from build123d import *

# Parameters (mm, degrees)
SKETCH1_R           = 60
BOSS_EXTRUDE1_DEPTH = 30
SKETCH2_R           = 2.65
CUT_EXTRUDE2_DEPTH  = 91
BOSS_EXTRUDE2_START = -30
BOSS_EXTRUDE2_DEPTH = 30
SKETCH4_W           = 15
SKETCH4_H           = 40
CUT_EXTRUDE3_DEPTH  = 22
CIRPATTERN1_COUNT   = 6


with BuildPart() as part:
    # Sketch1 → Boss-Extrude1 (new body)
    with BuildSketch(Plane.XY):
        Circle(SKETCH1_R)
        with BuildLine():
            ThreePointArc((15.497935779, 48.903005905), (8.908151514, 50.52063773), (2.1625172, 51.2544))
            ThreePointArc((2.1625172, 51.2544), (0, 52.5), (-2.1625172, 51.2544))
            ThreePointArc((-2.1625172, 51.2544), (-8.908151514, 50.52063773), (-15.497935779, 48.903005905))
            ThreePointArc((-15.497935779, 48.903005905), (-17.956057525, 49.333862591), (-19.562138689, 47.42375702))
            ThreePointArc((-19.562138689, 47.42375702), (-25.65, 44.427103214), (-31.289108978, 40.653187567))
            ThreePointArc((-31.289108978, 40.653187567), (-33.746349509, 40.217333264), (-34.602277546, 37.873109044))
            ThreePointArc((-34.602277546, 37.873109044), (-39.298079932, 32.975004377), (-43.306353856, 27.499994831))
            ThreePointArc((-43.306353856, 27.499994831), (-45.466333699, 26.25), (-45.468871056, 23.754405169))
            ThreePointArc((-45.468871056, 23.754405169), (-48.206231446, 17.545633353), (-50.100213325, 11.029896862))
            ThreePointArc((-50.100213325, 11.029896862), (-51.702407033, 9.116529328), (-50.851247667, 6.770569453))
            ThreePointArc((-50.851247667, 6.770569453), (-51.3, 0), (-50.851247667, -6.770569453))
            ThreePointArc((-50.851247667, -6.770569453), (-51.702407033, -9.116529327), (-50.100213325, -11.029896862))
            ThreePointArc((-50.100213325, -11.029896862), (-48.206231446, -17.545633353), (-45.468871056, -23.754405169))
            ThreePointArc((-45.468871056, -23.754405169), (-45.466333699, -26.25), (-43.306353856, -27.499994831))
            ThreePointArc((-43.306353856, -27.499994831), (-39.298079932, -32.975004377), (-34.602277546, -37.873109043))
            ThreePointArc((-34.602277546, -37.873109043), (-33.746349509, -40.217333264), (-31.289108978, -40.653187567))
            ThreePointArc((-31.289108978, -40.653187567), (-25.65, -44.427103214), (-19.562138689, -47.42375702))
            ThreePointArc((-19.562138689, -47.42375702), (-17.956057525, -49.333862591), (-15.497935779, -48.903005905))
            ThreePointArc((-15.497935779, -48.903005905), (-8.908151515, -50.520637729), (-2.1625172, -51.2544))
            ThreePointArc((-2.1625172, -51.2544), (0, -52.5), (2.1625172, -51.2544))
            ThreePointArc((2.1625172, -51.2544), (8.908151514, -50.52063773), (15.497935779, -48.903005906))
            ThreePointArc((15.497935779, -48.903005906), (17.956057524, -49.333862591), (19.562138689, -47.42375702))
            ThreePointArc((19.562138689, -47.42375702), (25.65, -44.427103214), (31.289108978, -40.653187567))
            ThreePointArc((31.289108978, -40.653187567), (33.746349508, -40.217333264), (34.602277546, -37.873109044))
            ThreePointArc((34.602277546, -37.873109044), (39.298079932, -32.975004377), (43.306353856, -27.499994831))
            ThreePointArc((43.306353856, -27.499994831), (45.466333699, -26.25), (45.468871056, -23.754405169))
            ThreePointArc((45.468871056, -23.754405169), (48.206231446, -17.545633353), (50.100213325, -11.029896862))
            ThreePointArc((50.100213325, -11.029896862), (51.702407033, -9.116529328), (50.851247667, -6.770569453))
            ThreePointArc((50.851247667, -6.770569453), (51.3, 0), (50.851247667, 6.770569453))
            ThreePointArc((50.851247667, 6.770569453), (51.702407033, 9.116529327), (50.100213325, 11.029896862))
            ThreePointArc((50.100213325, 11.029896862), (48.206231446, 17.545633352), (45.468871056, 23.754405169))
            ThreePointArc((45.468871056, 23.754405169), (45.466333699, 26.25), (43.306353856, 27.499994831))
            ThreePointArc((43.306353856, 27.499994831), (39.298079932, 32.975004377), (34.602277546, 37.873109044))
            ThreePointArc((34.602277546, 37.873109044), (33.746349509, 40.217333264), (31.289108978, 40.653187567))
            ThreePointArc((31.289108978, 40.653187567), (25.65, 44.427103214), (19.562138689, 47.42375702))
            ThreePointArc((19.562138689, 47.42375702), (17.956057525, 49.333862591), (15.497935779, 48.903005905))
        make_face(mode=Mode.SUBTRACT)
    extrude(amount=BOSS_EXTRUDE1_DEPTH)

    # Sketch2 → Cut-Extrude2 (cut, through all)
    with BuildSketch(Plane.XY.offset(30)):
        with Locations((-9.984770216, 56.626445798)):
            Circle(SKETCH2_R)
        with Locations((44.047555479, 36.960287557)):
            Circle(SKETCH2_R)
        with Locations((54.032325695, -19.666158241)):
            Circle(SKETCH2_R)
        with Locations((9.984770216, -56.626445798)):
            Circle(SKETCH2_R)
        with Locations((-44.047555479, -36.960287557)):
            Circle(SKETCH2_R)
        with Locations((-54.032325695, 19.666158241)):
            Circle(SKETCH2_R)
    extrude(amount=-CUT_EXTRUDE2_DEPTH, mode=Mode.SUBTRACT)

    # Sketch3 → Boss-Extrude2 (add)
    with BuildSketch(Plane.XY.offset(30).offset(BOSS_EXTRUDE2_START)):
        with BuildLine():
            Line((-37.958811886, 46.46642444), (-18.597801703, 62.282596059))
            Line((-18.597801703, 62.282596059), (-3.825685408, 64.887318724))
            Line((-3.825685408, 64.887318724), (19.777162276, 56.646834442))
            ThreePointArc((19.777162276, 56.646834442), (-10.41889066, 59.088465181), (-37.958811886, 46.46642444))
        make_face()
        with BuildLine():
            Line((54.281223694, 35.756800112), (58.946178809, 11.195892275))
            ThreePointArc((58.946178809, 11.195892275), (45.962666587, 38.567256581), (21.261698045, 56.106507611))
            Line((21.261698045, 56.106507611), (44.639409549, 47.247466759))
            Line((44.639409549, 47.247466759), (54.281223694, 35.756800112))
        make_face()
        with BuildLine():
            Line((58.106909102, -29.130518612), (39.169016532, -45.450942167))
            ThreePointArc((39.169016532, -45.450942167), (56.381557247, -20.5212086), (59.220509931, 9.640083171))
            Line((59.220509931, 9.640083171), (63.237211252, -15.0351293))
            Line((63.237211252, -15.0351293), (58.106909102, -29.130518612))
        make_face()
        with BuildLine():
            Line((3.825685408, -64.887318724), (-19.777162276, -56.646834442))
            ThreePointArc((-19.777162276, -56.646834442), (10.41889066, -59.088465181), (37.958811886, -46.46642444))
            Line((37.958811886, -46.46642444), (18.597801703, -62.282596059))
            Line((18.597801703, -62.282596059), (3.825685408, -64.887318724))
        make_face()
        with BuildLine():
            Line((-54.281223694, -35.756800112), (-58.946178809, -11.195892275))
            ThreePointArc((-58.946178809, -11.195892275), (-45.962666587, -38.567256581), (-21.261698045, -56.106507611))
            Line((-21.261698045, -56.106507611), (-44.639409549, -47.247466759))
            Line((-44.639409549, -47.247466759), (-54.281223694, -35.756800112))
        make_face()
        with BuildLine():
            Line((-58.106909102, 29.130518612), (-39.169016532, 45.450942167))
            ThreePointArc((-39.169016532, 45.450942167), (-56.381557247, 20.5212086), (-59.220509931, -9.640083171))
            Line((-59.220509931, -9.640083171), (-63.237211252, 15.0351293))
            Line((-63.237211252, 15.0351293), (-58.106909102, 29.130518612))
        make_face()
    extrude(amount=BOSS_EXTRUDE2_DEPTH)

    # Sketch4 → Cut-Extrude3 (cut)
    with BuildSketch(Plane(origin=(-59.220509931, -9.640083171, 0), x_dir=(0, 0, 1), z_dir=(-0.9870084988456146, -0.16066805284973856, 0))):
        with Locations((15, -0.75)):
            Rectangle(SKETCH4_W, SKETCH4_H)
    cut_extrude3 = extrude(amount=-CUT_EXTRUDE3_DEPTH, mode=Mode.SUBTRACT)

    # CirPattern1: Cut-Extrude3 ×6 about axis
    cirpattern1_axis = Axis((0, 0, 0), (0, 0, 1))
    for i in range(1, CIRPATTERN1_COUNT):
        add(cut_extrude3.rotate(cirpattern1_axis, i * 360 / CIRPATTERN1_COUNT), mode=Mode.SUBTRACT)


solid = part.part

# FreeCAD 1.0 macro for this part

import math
import FreeCAD as App
import Part
import Sketcher
from FreeCAD import Vector
Q = App.Units.Quantity


def add_polygon(sketch, points):
    """Adds a closed chain of lines whose ends are joined by coincident constraints."""
    first, n = sketch.GeometryCount, len(points)
    for a, b in zip(points, points[1:] + points[:1]):
        sketch.addGeometry(Part.LineSegment(App.Vector(*a, 0), App.Vector(*b, 0)), False)
    for i in range(n):
        sketch.addConstraint(Sketcher.Constraint("Coincident", first + i, 2, first + (i + 1) % n, 1))

doc = App.newDocument("Part")
body = doc.addObject("PartDesign::Body", "Body")

# Sketch on XY plane
sketch1 = body.newObject("Sketcher::SketchObject", "Sketch")
sketch1.AttachmentSupport = (doc.getObject("XY_Plane"), [""])
sketch1.MapMode = "FlatFace"
sketch1.addGeometry([
    Part.Circle(Vector(0, 0, 0), Vector(0, 0, 1), 60),  # 0
    Part.ArcOfCircle(Part.Circle(Vector(0, 0, 0), Vector(0, 0, 1), 51.3), math.radians(72.42), math.radians(87.58)),  # 1
    Part.ArcOfCircle(Part.Circle(Vector(17.1, 47, 0), Vector(0, 0, 1), 2.5), math.radians(10), math.radians(130)),  # 2
    Part.ArcOfCircle(Part.Circle(Vector(0, 0, 0), Vector(0, 0, 1), 51.3), math.radians(52.42), math.radians(67.58)),  # 3
    Part.ArcOfCircle(Part.Circle(Vector(32.1, 38.3, 0), Vector(0, 0, 1), 2.5), math.radians(-10), math.radians(110)),  # 4
    Part.ArcOfCircle(Part.Circle(Vector(0, 0, 0), Vector(0, 0, 1), 51.3), math.radians(32.42), math.radians(47.58)),  # 5
    Part.ArcOfCircle(Part.Circle(Vector(43.3, 25, 0), Vector(0, 0, 1), 2.5), math.radians(-30), math.radians(90)),  # 6
    Part.ArcOfCircle(Part.Circle(Vector(0, 0, 0), Vector(0, 0, 1), 51.3), math.radians(12.42), math.radians(27.58)),  # 7
    Part.ArcOfCircle(Part.Circle(Vector(49.2, 8.7, 0), Vector(0, 0, 1), 2.5), math.radians(-50), math.radians(70)),  # 8
    Part.ArcOfCircle(Part.Circle(Vector(0, 0, 0), Vector(0, 0, 1), 51.3), math.radians(-7.58), math.radians(7.58)),  # 9
    Part.ArcOfCircle(Part.Circle(Vector(49.2, -8.7, 0), Vector(0, 0, 1), 2.5), math.radians(-70), math.radians(50)),  # 10
    Part.ArcOfCircle(Part.Circle(Vector(0, 0, 0), Vector(0, 0, 1), 51.3), math.radians(-27.58), math.radians(-12.42)),  # 11
    Part.ArcOfCircle(Part.Circle(Vector(43.3, -25, 0), Vector(0, 0, 1), 2.5), math.radians(-90), math.radians(30)),  # 12
    Part.ArcOfCircle(Part.Circle(Vector(0, 0, 0), Vector(0, 0, 1), 51.3), math.radians(-47.58), math.radians(-32.42)),  # 13
    Part.ArcOfCircle(Part.Circle(Vector(32.1, -38.3, 0), Vector(0, 0, 1), 2.5), math.radians(-110), math.radians(10)),  # 14
    Part.ArcOfCircle(Part.Circle(Vector(0, 0, 0), Vector(0, 0, 1), 51.3), math.radians(-67.58), math.radians(-52.42)),  # 15
    Part.ArcOfCircle(Part.Circle(Vector(17.1, -47, 0), Vector(0, 0, 1), 2.5), math.radians(-130), math.radians(-10)),  # 16
    Part.ArcOfCircle(Part.Circle(Vector(0, 0, 0), Vector(0, 0, 1), 51.3), math.radians(-87.58), math.radians(-72.42)),  # 17
    Part.ArcOfCircle(Part.Circle(Vector(0, -50, 0), Vector(0, 0, 1), 2.5), math.radians(-150), math.radians(-30)),  # 18
    Part.ArcOfCircle(Part.Circle(Vector(0, 0, 0), Vector(0, 0, 1), 51.3), math.radians(-107.58), math.radians(-92.42)),  # 19
    Part.ArcOfCircle(Part.Circle(Vector(-17.1, -47, 0), Vector(0, 0, 1), 2.5), math.radians(-170), math.radians(-50)),  # 20
    Part.ArcOfCircle(Part.Circle(Vector(0, 0, 0), Vector(0, 0, 1), 51.3), math.radians(-127.58), math.radians(-112.42)),  # 21
    Part.ArcOfCircle(Part.Circle(Vector(-32.1, -38.3, 0), Vector(0, 0, 1), 2.5), math.radians(170), math.radians(290)),  # 22
    Part.ArcOfCircle(Part.Circle(Vector(0, 0, 0), Vector(0, 0, 1), 51.3), math.radians(-147.58), math.radians(-132.42)),  # 23
    Part.ArcOfCircle(Part.Circle(Vector(-43.3, -25, 0), Vector(0, 0, 1), 2.5), math.radians(150), math.radians(270)),  # 24
    Part.ArcOfCircle(Part.Circle(Vector(0, 0, 0), Vector(0, 0, 1), 51.3), math.radians(-167.58), math.radians(-152.42)),  # 25
    Part.ArcOfCircle(Part.Circle(Vector(-49.2, -8.7, 0), Vector(0, 0, 1), 2.5), math.radians(130), math.radians(250)),  # 26
    Part.ArcOfCircle(Part.Circle(Vector(0, 0, 0), Vector(0, 0, 1), 51.3), math.radians(172.42), math.radians(187.58)),  # 27
    Part.ArcOfCircle(Part.Circle(Vector(-49.2, 8.7, 0), Vector(0, 0, 1), 2.5), math.radians(110), math.radians(230)),  # 28
    Part.ArcOfCircle(Part.Circle(Vector(0, 0, 0), Vector(0, 0, 1), 51.3), math.radians(152.42), math.radians(167.58)),  # 29
    Part.ArcOfCircle(Part.Circle(Vector(-43.3, 25, 0), Vector(0, 0, 1), 2.5), math.radians(90), math.radians(210)),  # 30
    Part.ArcOfCircle(Part.Circle(Vector(0, 0, 0), Vector(0, 0, 1), 51.3), math.radians(132.42), math.radians(147.58)),  # 31
    Part.ArcOfCircle(Part.Circle(Vector(-32.1, 38.3, 0), Vector(0, 0, 1), 2.5), math.radians(70), math.radians(190)),  # 32
    Part.ArcOfCircle(Part.Circle(Vector(0, 0, 0), Vector(0, 0, 1), 51.3), math.radians(112.42), math.radians(127.58)),  # 33
    Part.ArcOfCircle(Part.Circle(Vector(-17.1, 47, 0), Vector(0, 0, 1), 2.5), math.radians(50), math.radians(170)),  # 34
    Part.ArcOfCircle(Part.Circle(Vector(0, 0, 0), Vector(0, 0, 1), 51.3), math.radians(92.42), math.radians(107.58)),  # 35
    Part.ArcOfCircle(Part.Circle(Vector(0, 50, 0), Vector(0, 0, 1), 2.5), math.radians(30), math.radians(150)),  # 36
], False)
sketch1.addConstraint([
    Sketcher.Constraint("Coincident", 1, 1, 2, 2),
    Sketcher.Constraint("Coincident", 2, 1, 3, 2),
    Sketcher.Constraint("Coincident", 3, 1, 4, 2),
    Sketcher.Constraint("Coincident", 4, 1, 5, 2),
    Sketcher.Constraint("Coincident", 5, 1, 6, 2),
    Sketcher.Constraint("Coincident", 6, 1, 7, 2),
    Sketcher.Constraint("Coincident", 7, 1, 8, 2),
    Sketcher.Constraint("Coincident", 8, 1, 9, 2),
    Sketcher.Constraint("Coincident", 9, 1, 10, 2),
    Sketcher.Constraint("Coincident", 10, 1, 11, 2),
    Sketcher.Constraint("Coincident", 11, 1, 12, 2),
    Sketcher.Constraint("Coincident", 12, 1, 13, 2),
    Sketcher.Constraint("Coincident", 13, 1, 14, 2),
    Sketcher.Constraint("Coincident", 14, 1, 15, 2),
    Sketcher.Constraint("Coincident", 15, 1, 16, 2),
    Sketcher.Constraint("Coincident", 16, 1, 17, 2),
    Sketcher.Constraint("Coincident", 17, 1, 18, 2),
    Sketcher.Constraint("Coincident", 18, 1, 19, 2),
    Sketcher.Constraint("Coincident", 19, 1, 20, 2),
    Sketcher.Constraint("Coincident", 20, 1, 21, 2),
    Sketcher.Constraint("Coincident", 21, 1, 22, 2),
    Sketcher.Constraint("Coincident", 22, 1, 23, 2),
    Sketcher.Constraint("Coincident", 23, 1, 24, 2),
    Sketcher.Constraint("Coincident", 24, 1, 25, 2),
    Sketcher.Constraint("Coincident", 25, 1, 26, 2),
    Sketcher.Constraint("Coincident", 26, 1, 27, 2),
    Sketcher.Constraint("Coincident", 27, 1, 28, 2),
    Sketcher.Constraint("Coincident", 28, 1, 29, 2),
    Sketcher.Constraint("Coincident", 29, 1, 30, 2),
    Sketcher.Constraint("Coincident", 30, 1, 31, 2),
    Sketcher.Constraint("Coincident", 31, 1, 32, 2),
    Sketcher.Constraint("Coincident", 32, 1, 33, 2),
    Sketcher.Constraint("Coincident", 33, 1, 34, 2),
    Sketcher.Constraint("Coincident", 34, 1, 35, 2),
    Sketcher.Constraint("Coincident", 35, 1, 36, 2),
    Sketcher.Constraint("Coincident", 36, 1, 1, 2),
    Sketcher.Constraint("Coincident", 0, 3, -1, 1),
    Sketcher.Constraint("Coincident", 1, 3, -1, 1),
    Sketcher.Constraint("Coincident", 3, 3, -1, 1),
    Sketcher.Constraint("Coincident", 5, 3, -1, 1),
    Sketcher.Constraint("Coincident", 7, 3, -1, 1),
    Sketcher.Constraint("Coincident", 9, 3, -1, 1),
    Sketcher.Constraint("Coincident", 11, 3, -1, 1),
    Sketcher.Constraint("Coincident", 13, 3, -1, 1),
    Sketcher.Constraint("Coincident", 15, 3, -1, 1),
    Sketcher.Constraint("Coincident", 17, 3, -1, 1),
    Sketcher.Constraint("Coincident", 19, 3, -1, 1),
    Sketcher.Constraint("Coincident", 21, 3, -1, 1),
    Sketcher.Constraint("Coincident", 23, 3, -1, 1),
    Sketcher.Constraint("Coincident", 25, 3, -1, 1),
    Sketcher.Constraint("Coincident", 27, 3, -1, 1),
    Sketcher.Constraint("Coincident", 29, 3, -1, 1),
    Sketcher.Constraint("Coincident", 31, 3, -1, 1),
    Sketcher.Constraint("Coincident", 33, 3, -1, 1),
    Sketcher.Constraint("Coincident", 35, 3, -1, 1),
    Sketcher.Constraint("Equal", 1, 3),
    Sketcher.Constraint("Equal", 2, 4),
    Sketcher.Constraint("Equal", 3, 5),
    Sketcher.Constraint("Equal", 4, 6),
    Sketcher.Constraint("Equal", 5, 7),
    Sketcher.Constraint("Equal", 6, 8),
    Sketcher.Constraint("Equal", 7, 9),
    Sketcher.Constraint("Equal", 8, 10),
    Sketcher.Constraint("Equal", 9, 11),
    Sketcher.Constraint("Equal", 10, 12),
    Sketcher.Constraint("Equal", 11, 13),
    Sketcher.Constraint("Equal", 12, 14),
    Sketcher.Constraint("Equal", 13, 15),
    Sketcher.Constraint("Equal", 14, 16),
    Sketcher.Constraint("Equal", 15, 17),
    Sketcher.Constraint("Equal", 16, 18),
    Sketcher.Constraint("Equal", 17, 19),
    Sketcher.Constraint("Equal", 18, 20),
    Sketcher.Constraint("Equal", 19, 21),
    Sketcher.Constraint("Equal", 20, 22),
    Sketcher.Constraint("Equal", 21, 23),
    Sketcher.Constraint("Equal", 22, 24),
    Sketcher.Constraint("Equal", 23, 25),
    Sketcher.Constraint("Equal", 24, 26),
    Sketcher.Constraint("Equal", 25, 27),
    Sketcher.Constraint("Equal", 26, 28),
    Sketcher.Constraint("Equal", 27, 29),
    Sketcher.Constraint("Equal", 28, 30),
    Sketcher.Constraint("Equal", 29, 31),
    Sketcher.Constraint("Equal", 30, 32),
    Sketcher.Constraint("Equal", 31, 33),
    Sketcher.Constraint("Equal", 32, 34),
    Sketcher.Constraint("Equal", 33, 35),
    Sketcher.Constraint("Equal", 34, 36),
    Sketcher.Constraint("Symmetric", 2, 3, 20, 3, -1, 1),
    Sketcher.Constraint("Symmetric", 4, 3, 22, 3, -1, 1),
    Sketcher.Constraint("Symmetric", 6, 3, 24, 3, -1, 1),
    Sketcher.Constraint("Symmetric", 8, 3, 26, 3, -1, 1),
    Sketcher.Constraint("Symmetric", 10, 3, 28, 3, -1, 1),
    Sketcher.Constraint("Symmetric", 12, 3, 30, 3, -1, 1),
    Sketcher.Constraint("Symmetric", 14, 3, 32, 3, -1, 1),
    Sketcher.Constraint("Symmetric", 16, 3, 34, 3, -1, 1),
    Sketcher.Constraint("Symmetric", 18, 3, 36, 3, -1, 1),
    Sketcher.Constraint("Symmetric", 16, 3, 20, 3, -2),
    Sketcher.Constraint("Symmetric", 14, 3, 22, 3, -2),
    Sketcher.Constraint("Symmetric", 12, 3, 24, 3, -2),
    Sketcher.Constraint("Symmetric", 10, 3, 26, 3, -2),
    Sketcher.Constraint("PointOnObject", 18, 3, -2),
    Sketcher.Constraint("Diameter", 0, 120.0),
    Sketcher.Constraint("Radius", 1, 51.3),
    Sketcher.Constraint("Radius", 2, 2.5),
    Sketcher.Constraint("DistanceY", -1, 1, 6, 3, 25.0),
    Sketcher.Constraint("DistanceY", 18, 3, -1, 1, 50.0),
    Sketcher.Constraint("DistanceY", -1, 1, 2, 3, 46.984631),
    Sketcher.Constraint("DistanceX", -1, 1, 4, 3, 32.13938),
    Sketcher.Constraint("DistanceX", -1, 1, 6, 3, 43.30127),
    Sketcher.Constraint("DistanceY", -1, 1, 8, 3, 8.682409),
    Sketcher.Constraint("DistanceX", -1, 1, 2, 1, 19.562139),
    Sketcher.Constraint("DistanceX", -1, 1, 3, 1, 31.289109),
    Sketcher.Constraint("DistanceY", -1, 1, 8, 1, 6.770569),
])
pad1 = body.newObject("PartDesign::Pad", "Pad")
pad1.Profile = sketch1
pad1.Length = 30

# Sketch on XY plane
sketch2 = body.newObject("Sketcher::SketchObject", "Sketch001")
sketch2.AttachmentSupport = (doc.getObject("XY_Plane"), [""])
sketch2.MapMode = "FlatFace"
sketch2.AttachmentOffset = App.Placement(Vector(0, 0, 30), App.Rotation())
sketch2.addGeometry([
    Part.Circle(Vector(-10, 56.6, 0), Vector(0, 0, 1), 2.6),  # 0
    Part.Circle(Vector(44, 37, 0), Vector(0, 0, 1), 2.6),  # 1
    Part.Circle(Vector(54, -19.7, 0), Vector(0, 0, 1), 2.6),  # 2
    Part.Circle(Vector(10, -56.6, 0), Vector(0, 0, 1), 2.6),  # 3
    Part.Circle(Vector(-44, -37, 0), Vector(0, 0, 1), 2.6),  # 4
    Part.Circle(Vector(-54, 19.7, 0), Vector(0, 0, 1), 2.6),  # 5
], False)
sketch2.addConstraint([
    Sketcher.Constraint("Equal", 0, 1),
    Sketcher.Constraint("Equal", 1, 2),
    Sketcher.Constraint("Equal", 2, 3),
    Sketcher.Constraint("Equal", 3, 4),
    Sketcher.Constraint("Equal", 4, 5),
    Sketcher.Constraint("Symmetric", 0, 3, 3, 3, -1, 1),
    Sketcher.Constraint("Symmetric", 1, 3, 4, 3, -1, 1),
    Sketcher.Constraint("Symmetric", 2, 3, 5, 3, -1, 1),
    Sketcher.Constraint("Diameter", 0, 5.3),
    Sketcher.Constraint("DistanceX", 0, 3, -1, 1, 9.98477),
    Sketcher.Constraint("DistanceY", 2, 3, -1, 1, 19.666158),
    Sketcher.Constraint("DistanceY", 1, 3, 0, 3, 19.666158),
    Sketcher.Constraint("DistanceX", 1, 3, 2, 3, 9.98477),
    Sketcher.Constraint("DistanceY", 3, 3, 0, 3, 113.252892),
    Sketcher.Constraint("DistanceX", 4, 3, 2, 3, 98.079881),
])
pocket1 = body.newObject("PartDesign::Pocket", "Pocket")
pocket1.Profile = sketch2
pocket1.Type = "ThroughAll"

# Sketch on XY plane
sketch3 = body.newObject("Sketcher::SketchObject", "Sketch002")
sketch3.AttachmentSupport = (doc.getObject("XY_Plane"), [""])
sketch3.MapMode = "FlatFace"
sketch3.addGeometry([
    Part.LineSegment(Vector(-19, 62, 0), Vector(-38, 46, 0)),  # 0
    Part.ArcOfCircle(Part.Circle(Vector(0, 0, 0), Vector(0, 0, 1), 60), math.radians(71), math.radians(129)),  # 1
    Part.LineSegment(Vector(20, 57, 0), Vector(-4, 65, 0)),  # 2
    Part.LineSegment(Vector(-4, 65, 0), Vector(-19, 62, 0)),  # 3
    Part.LineSegment(Vector(59, 11, 0), Vector(54, 36, 0)),  # 4
    Part.LineSegment(Vector(54, 36, 0), Vector(45, 47, 0)),  # 5
    Part.LineSegment(Vector(45, 47, 0), Vector(21, 56, 0)),  # 6
    Part.ArcOfCircle(Part.Circle(Vector(0, 0, 0), Vector(0, 0, 1), 60), math.radians(11), math.radians(69)),  # 7
    Part.LineSegment(Vector(39, -45, 0), Vector(58, -29, 0)),  # 8
    Part.LineSegment(Vector(58, -29, 0), Vector(63, -15, 0)),  # 9
    Part.LineSegment(Vector(63, -15, 0), Vector(59, 10, 0)),  # 10
    Part.ArcOfCircle(Part.Circle(Vector(0, 0, 0), Vector(0, 0, 1), 60), math.radians(-49), math.radians(9)),  # 11
    Part.LineSegment(Vector(-20, -57, 0), Vector(4, -65, 0)),  # 12
    Part.LineSegment(Vector(4, -65, 0), Vector(19, -62, 0)),  # 13
    Part.LineSegment(Vector(19, -62, 0), Vector(38, -46, 0)),  # 14
    Part.ArcOfCircle(Part.Circle(Vector(0, 0, 0), Vector(0, 0, 1), 60), math.radians(-109), math.radians(-51)),  # 15
    Part.LineSegment(Vector(-59, -11, 0), Vector(-54, -36, 0)),  # 16
    Part.LineSegment(Vector(-54, -36, 0), Vector(-45, -47, 0)),  # 17
    Part.LineSegment(Vector(-45, -47, 0), Vector(-21, -56, 0)),  # 18
    Part.ArcOfCircle(Part.Circle(Vector(0, 0, 0), Vector(0, 0, 1), 60), math.radians(-169), math.radians(-111)),  # 19
    Part.LineSegment(Vector(-39, 45, 0), Vector(-58, 29, 0)),  # 20
    Part.LineSegment(Vector(-58, 29, 0), Vector(-63, 15, 0)),  # 21
    Part.LineSegment(Vector(-63, 15, 0), Vector(-59, -10, 0)),  # 22
    Part.ArcOfCircle(Part.Circle(Vector(0, 0, 0), Vector(0, 0, 1), 60), math.radians(131), math.radians(189)),  # 23
], False)
sketch3.addConstraint([
    Sketcher.Constraint("Tangent", 0, 2, 1, 2),
    Sketcher.Constraint("Tangent", 1, 1, 2, 1),
    Sketcher.Constraint("Coincident", 2, 2, 3, 1),
    Sketcher.Constraint("Coincident", 3, 2, 0, 1),
    Sketcher.Constraint("Coincident", 4, 2, 5, 1),
    Sketcher.Constraint("Coincident", 5, 2, 6, 1),
    Sketcher.Constraint("Tangent", 6, 2, 7, 2),
    Sketcher.Constraint("Tangent", 7, 1, 4, 1),
    Sketcher.Constraint("Coincident", 8, 2, 9, 1),
    Sketcher.Constraint("Coincident", 9, 2, 10, 1),
    Sketcher.Constraint("Tangent", 10, 2, 11, 2),
    Sketcher.Constraint("Tangent", 11, 1, 8, 1),
    Sketcher.Constraint("Coincident", 12, 2, 13, 1),
    Sketcher.Constraint("Coincident", 13, 2, 14, 1),
    Sketcher.Constraint("Tangent", 14, 2, 15, 2),
    Sketcher.Constraint("Tangent", 15, 1, 12, 1),
    Sketcher.Constraint("Coincident", 16, 2, 17, 1),
    Sketcher.Constraint("Coincident", 17, 2, 18, 1),
    Sketcher.Constraint("Tangent", 18, 2, 19, 2),
    Sketcher.Constraint("Tangent", 19, 1, 16, 1),
    Sketcher.Constraint("Coincident", 20, 2, 21, 1),
    Sketcher.Constraint("Coincident", 21, 2, 22, 1),
    Sketcher.Constraint("Tangent", 22, 2, 23, 2),
    Sketcher.Constraint("Tangent", 23, 1, 20, 1),
    Sketcher.Constraint("Coincident", 1, 3, -1, 1),
    Sketcher.Constraint("Coincident", 7, 3, -1, 1),
    Sketcher.Constraint("Coincident", 11, 3, -1, 1),
    Sketcher.Constraint("Coincident", 15, 3, -1, 1),
    Sketcher.Constraint("Coincident", 19, 3, -1, 1),
    Sketcher.Constraint("Coincident", 23, 3, -1, 1),
    Sketcher.Constraint("Equal", 1, 7),
    Sketcher.Constraint("Equal", 7, 11),
    Sketcher.Constraint("Equal", 11, 15),
    Sketcher.Constraint("Equal", 15, 19),
    Sketcher.Constraint("Equal", 19, 23),
    Sketcher.Constraint("Symmetric", 2, 2, 12, 2, -1, 1),
    Sketcher.Constraint("Symmetric", 3, 2, 13, 2, -1, 1),
    Sketcher.Constraint("Symmetric", 4, 2, 16, 2, -1, 1),
    Sketcher.Constraint("Symmetric", 5, 2, 17, 2, -1, 1),
    Sketcher.Constraint("Symmetric", 8, 2, 20, 2, -1, 1),
    Sketcher.Constraint("Symmetric", 9, 2, 21, 2, -1, 1),
    Sketcher.Constraint("Equal", 0, 2),
    Sketcher.Constraint("Equal", 2, 4),
    Sketcher.Constraint("Equal", 3, 5),
    Sketcher.Constraint("Equal", 4, 6),
    Sketcher.Constraint("Equal", 6, 8),
    Sketcher.Constraint("Equal", 5, 9),
    Sketcher.Constraint("Equal", 8, 10),
    Sketcher.Constraint("Radius", 1, 60.0),
    Sketcher.Constraint("Angle", 3, Q("-170 deg")),
    Sketcher.Constraint("Angle", 5, Q("130 deg")),
    Sketcher.Constraint("Angle", 9, Q("70 deg")),
    Sketcher.Constraint("Distance", 0, 25.0),
    Sketcher.Constraint("Distance", 3, 15.0),
])
pad2 = body.newObject("PartDesign::Pad", "Pad001")
pad2.Profile = sketch3
pad2.Length = 30

# Sketch on an angled plane
sketch4 = body.newObject("Sketcher::SketchObject", "Sketch003")
sketch4.Placement = App.Placement(Vector(-59.22051, -9.640083, 0), App.Rotation(Vector(0, 0, 1), Vector(-0.160668053, 0.987008499, 0), Vector(-0.987008499, -0.160668053, 0), "ZXY"))
add_polygon(sketch4, [(8, 19), (8, -21), (22, -21), (22, 19)])  # lines 0-3
sketch4.addConstraint([
    Sketcher.Constraint("Vertical", 0),
    Sketcher.Constraint("Horizontal", 1),
    Sketcher.Constraint("Vertical", 2),
    Sketcher.Constraint("Horizontal", 3),
    Sketcher.Constraint("DistanceX", 1, 1, 1, 2, 15.0),
    Sketcher.Constraint("DistanceY", 0, 2, 0, 1, 40.0),
    Sketcher.Constraint("DistanceX", -1, 1, 0, 2, 7.5),
    Sketcher.Constraint("DistanceY", 0, 2, -1, 1, 20.75),
])
pocket2 = body.newObject("PartDesign::Pocket", "Pocket001")
pocket2.Profile = sketch4
pocket2.Length = 22
doc.recompute()

polarpattern = body.newObject("PartDesign::PolarPattern", "PolarPattern")
polarpattern.Originals = [pocket2]
polarpattern.Axis = (doc.getObject("Z_Axis"), [""])
polarpattern.Angle = 360
polarpattern.Occurrences = 6
body.Tip = polarpattern

doc.recompute()
